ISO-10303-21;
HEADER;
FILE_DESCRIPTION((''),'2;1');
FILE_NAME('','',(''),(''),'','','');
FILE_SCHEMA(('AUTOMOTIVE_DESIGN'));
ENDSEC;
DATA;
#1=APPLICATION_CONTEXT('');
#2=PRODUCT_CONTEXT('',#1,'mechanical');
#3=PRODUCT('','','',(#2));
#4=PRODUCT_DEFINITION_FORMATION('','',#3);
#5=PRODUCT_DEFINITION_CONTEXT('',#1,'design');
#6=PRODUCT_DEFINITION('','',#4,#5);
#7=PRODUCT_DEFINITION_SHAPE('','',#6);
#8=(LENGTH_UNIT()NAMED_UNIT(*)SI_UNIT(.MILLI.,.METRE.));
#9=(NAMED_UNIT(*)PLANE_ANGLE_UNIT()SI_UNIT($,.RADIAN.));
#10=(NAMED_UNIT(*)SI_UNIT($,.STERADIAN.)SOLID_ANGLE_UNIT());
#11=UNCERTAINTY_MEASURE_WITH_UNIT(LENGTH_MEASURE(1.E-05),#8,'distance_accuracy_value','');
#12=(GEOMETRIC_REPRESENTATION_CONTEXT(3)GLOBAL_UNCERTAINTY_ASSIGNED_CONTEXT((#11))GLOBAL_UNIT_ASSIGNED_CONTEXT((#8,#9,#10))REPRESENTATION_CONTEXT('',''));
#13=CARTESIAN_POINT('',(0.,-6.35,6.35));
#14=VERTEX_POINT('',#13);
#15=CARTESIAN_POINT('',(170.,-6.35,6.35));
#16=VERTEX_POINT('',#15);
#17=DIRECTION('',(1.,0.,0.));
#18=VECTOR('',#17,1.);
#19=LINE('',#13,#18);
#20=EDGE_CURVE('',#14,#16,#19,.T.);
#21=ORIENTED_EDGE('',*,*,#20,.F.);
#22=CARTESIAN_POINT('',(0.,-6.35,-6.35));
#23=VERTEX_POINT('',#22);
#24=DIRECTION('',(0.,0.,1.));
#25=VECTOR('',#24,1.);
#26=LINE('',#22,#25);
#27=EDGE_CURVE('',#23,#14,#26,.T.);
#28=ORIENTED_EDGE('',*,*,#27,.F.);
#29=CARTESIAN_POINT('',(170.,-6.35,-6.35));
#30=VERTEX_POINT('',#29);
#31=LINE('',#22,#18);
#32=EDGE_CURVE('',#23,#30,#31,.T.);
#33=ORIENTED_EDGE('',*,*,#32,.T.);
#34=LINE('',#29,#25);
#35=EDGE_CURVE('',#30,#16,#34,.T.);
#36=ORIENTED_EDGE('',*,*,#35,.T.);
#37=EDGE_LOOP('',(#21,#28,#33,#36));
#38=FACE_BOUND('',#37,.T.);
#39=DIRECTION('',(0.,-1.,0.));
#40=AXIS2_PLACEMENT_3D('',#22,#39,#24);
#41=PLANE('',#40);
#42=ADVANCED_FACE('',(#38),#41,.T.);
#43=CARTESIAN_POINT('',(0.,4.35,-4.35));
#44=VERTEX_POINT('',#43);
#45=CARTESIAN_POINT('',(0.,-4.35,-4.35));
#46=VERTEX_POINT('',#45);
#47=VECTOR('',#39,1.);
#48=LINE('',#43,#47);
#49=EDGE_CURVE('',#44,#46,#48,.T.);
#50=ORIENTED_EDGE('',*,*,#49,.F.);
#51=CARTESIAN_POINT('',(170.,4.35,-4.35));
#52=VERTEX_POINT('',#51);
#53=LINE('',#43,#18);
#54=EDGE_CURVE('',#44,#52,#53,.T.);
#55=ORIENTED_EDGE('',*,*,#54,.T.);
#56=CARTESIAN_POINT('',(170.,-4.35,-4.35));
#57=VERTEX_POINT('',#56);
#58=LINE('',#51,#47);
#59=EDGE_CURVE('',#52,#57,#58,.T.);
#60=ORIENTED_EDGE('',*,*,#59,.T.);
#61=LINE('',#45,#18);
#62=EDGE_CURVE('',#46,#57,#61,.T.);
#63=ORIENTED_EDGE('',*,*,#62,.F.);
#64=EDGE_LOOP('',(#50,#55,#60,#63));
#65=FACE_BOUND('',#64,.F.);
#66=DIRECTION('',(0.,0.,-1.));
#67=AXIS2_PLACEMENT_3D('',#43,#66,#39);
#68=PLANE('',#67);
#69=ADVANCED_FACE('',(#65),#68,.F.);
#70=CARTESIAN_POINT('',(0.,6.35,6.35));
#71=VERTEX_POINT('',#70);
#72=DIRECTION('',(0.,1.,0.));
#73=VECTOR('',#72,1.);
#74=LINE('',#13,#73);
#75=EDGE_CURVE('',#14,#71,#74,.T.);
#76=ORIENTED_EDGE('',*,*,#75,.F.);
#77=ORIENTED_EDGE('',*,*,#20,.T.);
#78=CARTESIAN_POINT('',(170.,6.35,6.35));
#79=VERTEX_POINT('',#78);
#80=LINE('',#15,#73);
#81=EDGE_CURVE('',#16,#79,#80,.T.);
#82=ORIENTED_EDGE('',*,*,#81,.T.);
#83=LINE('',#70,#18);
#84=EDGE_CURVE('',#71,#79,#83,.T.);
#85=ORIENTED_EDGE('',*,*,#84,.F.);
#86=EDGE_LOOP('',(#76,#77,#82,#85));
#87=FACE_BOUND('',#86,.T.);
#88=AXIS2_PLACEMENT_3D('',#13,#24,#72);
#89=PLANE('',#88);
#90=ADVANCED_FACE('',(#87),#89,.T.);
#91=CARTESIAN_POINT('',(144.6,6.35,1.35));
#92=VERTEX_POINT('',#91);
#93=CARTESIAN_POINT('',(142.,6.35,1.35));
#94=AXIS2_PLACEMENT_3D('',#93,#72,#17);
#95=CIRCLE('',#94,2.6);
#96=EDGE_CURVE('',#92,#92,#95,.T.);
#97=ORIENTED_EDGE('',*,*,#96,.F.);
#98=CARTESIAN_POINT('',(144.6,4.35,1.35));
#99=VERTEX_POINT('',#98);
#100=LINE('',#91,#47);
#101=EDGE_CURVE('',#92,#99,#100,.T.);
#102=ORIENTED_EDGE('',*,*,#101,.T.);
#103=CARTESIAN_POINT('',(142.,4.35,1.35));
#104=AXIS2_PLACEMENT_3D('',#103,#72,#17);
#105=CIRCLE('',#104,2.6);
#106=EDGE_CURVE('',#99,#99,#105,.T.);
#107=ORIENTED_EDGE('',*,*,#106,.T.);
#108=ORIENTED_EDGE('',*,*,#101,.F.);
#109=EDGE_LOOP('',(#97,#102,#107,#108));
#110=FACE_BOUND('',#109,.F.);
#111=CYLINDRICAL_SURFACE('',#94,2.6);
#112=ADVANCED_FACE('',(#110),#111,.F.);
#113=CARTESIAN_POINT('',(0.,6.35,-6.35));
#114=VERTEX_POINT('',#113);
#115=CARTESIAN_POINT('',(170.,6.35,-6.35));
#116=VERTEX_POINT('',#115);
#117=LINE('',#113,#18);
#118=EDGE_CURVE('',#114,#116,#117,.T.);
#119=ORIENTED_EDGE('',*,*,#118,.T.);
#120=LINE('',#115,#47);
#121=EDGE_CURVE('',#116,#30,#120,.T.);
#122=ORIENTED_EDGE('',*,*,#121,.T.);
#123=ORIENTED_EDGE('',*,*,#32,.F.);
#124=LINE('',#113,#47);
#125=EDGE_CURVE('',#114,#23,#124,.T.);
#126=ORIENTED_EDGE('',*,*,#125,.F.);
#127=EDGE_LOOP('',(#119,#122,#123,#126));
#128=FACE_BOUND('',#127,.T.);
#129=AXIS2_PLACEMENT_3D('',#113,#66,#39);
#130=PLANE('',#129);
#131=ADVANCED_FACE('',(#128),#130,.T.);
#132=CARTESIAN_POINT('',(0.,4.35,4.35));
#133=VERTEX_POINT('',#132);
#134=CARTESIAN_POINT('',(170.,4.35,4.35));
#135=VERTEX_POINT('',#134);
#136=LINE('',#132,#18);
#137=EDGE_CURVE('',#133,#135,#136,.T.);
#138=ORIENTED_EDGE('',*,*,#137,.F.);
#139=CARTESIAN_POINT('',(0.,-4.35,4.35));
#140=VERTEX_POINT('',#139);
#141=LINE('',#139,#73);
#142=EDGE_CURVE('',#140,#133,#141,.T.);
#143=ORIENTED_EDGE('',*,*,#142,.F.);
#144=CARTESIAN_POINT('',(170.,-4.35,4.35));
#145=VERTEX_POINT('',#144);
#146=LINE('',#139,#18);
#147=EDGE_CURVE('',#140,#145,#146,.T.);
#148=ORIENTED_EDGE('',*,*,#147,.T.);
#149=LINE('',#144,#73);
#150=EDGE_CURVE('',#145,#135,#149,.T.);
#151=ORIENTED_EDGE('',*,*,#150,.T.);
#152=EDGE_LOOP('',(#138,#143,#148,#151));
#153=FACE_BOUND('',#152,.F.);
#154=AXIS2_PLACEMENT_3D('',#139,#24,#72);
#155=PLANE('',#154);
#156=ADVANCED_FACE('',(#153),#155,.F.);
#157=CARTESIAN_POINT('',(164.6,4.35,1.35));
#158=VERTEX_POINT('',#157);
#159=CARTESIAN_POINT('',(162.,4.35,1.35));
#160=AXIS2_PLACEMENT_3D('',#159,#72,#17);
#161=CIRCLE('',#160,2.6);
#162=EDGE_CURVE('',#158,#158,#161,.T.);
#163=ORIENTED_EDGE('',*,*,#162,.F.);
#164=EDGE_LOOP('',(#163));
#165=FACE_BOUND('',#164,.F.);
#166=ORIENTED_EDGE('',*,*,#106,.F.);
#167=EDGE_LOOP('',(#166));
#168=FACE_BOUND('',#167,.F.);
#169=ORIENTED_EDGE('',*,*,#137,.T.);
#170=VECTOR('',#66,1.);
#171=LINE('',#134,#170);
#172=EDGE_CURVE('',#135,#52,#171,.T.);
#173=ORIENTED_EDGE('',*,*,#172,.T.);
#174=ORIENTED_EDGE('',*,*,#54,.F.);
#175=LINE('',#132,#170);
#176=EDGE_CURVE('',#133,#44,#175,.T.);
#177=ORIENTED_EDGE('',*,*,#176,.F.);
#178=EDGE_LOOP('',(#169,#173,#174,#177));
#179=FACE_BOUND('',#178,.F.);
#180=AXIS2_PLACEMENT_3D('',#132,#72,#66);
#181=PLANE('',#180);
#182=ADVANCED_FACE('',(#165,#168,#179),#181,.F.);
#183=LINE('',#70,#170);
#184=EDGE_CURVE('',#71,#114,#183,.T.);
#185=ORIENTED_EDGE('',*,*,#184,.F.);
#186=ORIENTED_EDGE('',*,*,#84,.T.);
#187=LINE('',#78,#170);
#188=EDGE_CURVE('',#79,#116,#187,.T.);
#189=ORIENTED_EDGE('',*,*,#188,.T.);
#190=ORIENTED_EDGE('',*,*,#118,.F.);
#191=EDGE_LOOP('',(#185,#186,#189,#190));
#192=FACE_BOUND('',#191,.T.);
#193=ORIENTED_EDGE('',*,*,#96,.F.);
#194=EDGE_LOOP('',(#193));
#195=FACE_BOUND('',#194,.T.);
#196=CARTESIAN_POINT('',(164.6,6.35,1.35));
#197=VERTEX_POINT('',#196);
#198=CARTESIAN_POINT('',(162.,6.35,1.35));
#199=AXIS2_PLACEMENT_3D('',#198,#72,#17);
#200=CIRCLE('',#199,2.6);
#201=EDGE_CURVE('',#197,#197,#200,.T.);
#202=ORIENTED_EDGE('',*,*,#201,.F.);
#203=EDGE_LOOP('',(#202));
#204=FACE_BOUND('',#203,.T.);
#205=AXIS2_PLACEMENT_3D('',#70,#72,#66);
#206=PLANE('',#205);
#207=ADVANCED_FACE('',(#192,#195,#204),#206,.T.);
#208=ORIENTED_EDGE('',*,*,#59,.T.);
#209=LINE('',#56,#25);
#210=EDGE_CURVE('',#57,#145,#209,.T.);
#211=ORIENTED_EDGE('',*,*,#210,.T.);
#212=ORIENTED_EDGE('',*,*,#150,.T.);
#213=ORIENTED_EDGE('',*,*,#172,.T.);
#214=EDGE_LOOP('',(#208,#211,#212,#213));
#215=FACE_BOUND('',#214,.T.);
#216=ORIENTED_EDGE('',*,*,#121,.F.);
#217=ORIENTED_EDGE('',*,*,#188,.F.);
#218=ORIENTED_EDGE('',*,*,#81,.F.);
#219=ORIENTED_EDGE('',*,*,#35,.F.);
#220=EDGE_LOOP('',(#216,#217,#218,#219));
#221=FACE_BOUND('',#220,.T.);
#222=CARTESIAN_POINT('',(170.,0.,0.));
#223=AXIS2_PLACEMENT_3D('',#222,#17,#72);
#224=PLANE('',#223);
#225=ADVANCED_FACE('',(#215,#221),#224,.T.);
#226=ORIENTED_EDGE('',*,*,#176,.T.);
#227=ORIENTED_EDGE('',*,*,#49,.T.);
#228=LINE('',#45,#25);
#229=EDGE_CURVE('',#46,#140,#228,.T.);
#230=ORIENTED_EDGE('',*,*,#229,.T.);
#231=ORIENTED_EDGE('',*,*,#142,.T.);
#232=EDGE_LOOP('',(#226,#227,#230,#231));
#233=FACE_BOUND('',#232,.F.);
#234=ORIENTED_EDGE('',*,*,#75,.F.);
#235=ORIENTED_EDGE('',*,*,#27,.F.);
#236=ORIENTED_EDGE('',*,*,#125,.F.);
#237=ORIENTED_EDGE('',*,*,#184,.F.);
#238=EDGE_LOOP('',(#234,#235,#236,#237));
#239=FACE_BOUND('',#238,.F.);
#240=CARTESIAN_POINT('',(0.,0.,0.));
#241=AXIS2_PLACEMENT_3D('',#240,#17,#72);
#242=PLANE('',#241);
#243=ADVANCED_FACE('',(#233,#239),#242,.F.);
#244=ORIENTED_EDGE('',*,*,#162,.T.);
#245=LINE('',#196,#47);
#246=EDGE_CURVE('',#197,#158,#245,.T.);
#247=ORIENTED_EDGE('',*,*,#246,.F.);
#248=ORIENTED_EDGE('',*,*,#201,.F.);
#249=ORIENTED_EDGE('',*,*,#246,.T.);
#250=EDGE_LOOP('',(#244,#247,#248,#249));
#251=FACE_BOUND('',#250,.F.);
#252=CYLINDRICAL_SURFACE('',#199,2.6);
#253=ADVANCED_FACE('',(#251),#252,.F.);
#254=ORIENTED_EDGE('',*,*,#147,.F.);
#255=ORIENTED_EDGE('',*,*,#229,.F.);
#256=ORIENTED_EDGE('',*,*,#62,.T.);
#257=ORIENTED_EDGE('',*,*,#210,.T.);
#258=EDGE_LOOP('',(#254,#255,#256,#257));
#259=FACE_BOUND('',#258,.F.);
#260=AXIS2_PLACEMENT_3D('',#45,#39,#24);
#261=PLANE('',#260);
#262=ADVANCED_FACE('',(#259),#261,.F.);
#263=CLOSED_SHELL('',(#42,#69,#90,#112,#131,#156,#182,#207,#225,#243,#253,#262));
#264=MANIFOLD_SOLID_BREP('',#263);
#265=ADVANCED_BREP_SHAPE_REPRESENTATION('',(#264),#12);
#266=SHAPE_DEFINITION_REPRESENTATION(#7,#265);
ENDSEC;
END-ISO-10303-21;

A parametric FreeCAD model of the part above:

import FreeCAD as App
import Part
import Sketcher

V = App.Vector

doc = App.newDocument("Part")
params = doc.addObject("Spreadsheet::Sheet", "Params")
for row, (alias, value) in enumerate([
    ("sketch1_width", "12.7 mm"),
    ("pad1_length", "170 mm"),
    ("sketch2_diameter", "5.2 mm"),
    ("pocket1_length", "10 mm"),
], start=1):
    params.set(f"A{row}", alias)
    params.set(f"B{row}", "=" + value)
    params.setAlias(f"B{row}", alias)

body = doc.addObject("PartDesign::Body", "Body")

# Sketch on YZ plane
sketch1 = body.newObject("Sketcher::SketchObject", "Sketch")
sketch1.AttachmentSupport = (doc.getObject("YZ_Plane"), [""])
sketch1.MapMode = "FlatFace"
sketch1.addGeometry([
    Part.LineSegment(V(6, 6, 0), V(-6, 6, 0)),  # 0
    Part.LineSegment(V(-6, 6, 0), V(-6, -6, 0)),  # 1
    Part.LineSegment(V(-6, -6, 0), V(6, -6, 0)),  # 2
    Part.LineSegment(V(6, -6, 0), V(6, 6, 0)),  # 3
    Part.LineSegment(V(-4, -4, 0), V(-4, 4, 0)),  # 4
    Part.LineSegment(V(-4, 4, 0), V(4, 4, 0)),  # 5
    Part.LineSegment(V(4, 4, 0), V(4, -4, 0)),  # 6
    Part.LineSegment(V(4, -4, 0), V(-4, -4, 0)),  # 7
], False)
sketch1.addConstraint([
    Sketcher.Constraint("Coincident", 0, 2, 1, 1),
    Sketcher.Constraint("Coincident", 1, 2, 2, 1),
    Sketcher.Constraint("Coincident", 2, 2, 3, 1),
    Sketcher.Constraint("Coincident", 3, 2, 0, 1),
    Sketcher.Constraint("Coincident", 4, 2, 5, 1),
    Sketcher.Constraint("Coincident", 5, 2, 6, 1),
    Sketcher.Constraint("Coincident", 6, 2, 7, 1),
    Sketcher.Constraint("Coincident", 7, 2, 4, 1),
    Sketcher.Constraint("Horizontal", 0),
    Sketcher.Constraint("Vertical", 1),
    Sketcher.Constraint("Horizontal", 2),
    Sketcher.Constraint("Vertical", 3),
    Sketcher.Constraint("Vertical", 4),
    Sketcher.Constraint("Horizontal", 5),
    Sketcher.Constraint("Vertical", 6),
    Sketcher.Constraint("Horizontal", 7),
    Sketcher.Constraint("Symmetric", 0, 2, 2, 2, -1, 1),
    Sketcher.Constraint("Symmetric", 4, 2, 6, 2, -1, 1),
    Sketcher.Constraint("Equal", 2, 1),
    Sketcher.Constraint("Equal", 7, 4),
    Sketcher.Constraint("DistanceX", 0, 2, 0, 1, 12.7),
    Sketcher.Constraint("DistanceX", 0, 2, 4, 2, 2.0),
])
sketch1.setExpression("Constraints[20]", "Params.sketch1_width")
pad1 = body.newObject("PartDesign::Pad", "Pad")
pad1.Profile = sketch1
pad1.setExpression("Length", "Params.pad1_length")

# Sketch on XZ plane
sketch2 = body.newObject("Sketcher::SketchObject", "Sketch001")
sketch2.AttachmentSupport = (doc.getObject("XZ_Plane"), [""])
sketch2.MapMode = "FlatFace"
sketch2.AttachmentOffset = App.Placement(V(0, 0, -6.35), App.Rotation())
sketch2.addGeometry([
    Part.Circle(V(162, 1.4, 0), V(0, 0, 1), 2.6),
    Part.Circle(V(142, 1.4, 0), V(0, 0, 1), 2.6),
], False)
sketch2.addConstraint([
    Sketcher.Constraint("Equal", 0, 1),
    Sketcher.Constraint("Horizontal", 0, 3, 1, 3),
    Sketcher.Constraint("Diameter", 0, 5.2),
    Sketcher.Constraint("DistanceX", 1, 3, 0, 3, 20.0),
    Sketcher.Constraint("DistanceX", -1, 1, 0, 3, 162.0),
    Sketcher.Constraint("DistanceY", -1, 1, 0, 3, 1.35),
])
sketch2.setExpression("Constraints[2]", "Params.sketch2_diameter")
pocket1 = body.newObject("PartDesign::Pocket", "Pocket")
pocket1.Profile = sketch2
pocket1.setExpression("Length", "Params.pocket1_length")
pocket1.Reversed = True

doc.recompute()
